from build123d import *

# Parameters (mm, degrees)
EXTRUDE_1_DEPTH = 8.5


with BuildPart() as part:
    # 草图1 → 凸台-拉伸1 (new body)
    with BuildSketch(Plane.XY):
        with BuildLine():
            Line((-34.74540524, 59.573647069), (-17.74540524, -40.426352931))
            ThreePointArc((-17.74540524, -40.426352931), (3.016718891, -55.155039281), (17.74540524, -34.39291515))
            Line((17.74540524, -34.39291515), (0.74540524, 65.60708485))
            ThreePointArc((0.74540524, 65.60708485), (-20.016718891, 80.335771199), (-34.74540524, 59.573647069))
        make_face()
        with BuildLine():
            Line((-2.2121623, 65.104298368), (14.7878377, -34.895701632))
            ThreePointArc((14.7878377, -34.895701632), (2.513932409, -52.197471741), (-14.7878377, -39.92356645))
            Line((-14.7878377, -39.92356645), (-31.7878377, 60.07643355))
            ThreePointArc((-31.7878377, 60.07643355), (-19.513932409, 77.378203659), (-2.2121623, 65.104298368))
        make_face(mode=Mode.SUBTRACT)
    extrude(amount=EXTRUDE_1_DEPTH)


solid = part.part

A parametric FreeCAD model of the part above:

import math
import FreeCAD as App
import Part
import Sketcher
from FreeCAD import Vector

doc = App.newDocument("Part")
params = doc.addObject("Spreadsheet::Sheet", "Params")
for row, (alias, value) in enumerate([
    ("sketch1_radius", "18 mm"),
    ("sketch1_radius2", "15 mm"),
    ("pad1_length", "8.5 mm"),
], start=1):
    params.set(f"A{row}", alias)
    params.set(f"B{row}", "=" + value)
    params.setAlias(f"B{row}", alias)

body = doc.addObject("PartDesign::Body", "Body")

# Sketch on XY plane
sketch1 = doc.addObject("Sketcher::SketchObject", "Sketch")
body.addObject(sketch1)
sketch1.AttachmentSupport = (doc.XY_Plane, [""])
sketch1.MapMode = "FlatFace"
sketch1.addGeometry([
    Part.LineSegment(Vector(-35, 60, 0), Vector(-18, -40, 0)),  # 0
    Part.ArcOfCircle(Part.Circle(Vector(0, -37, 0), Vector(0, 0, 1), 18), math.radians(-170), math.radians(10)),  # 1
    Part.LineSegment(Vector(18, -34, 0), Vector(1, 66, 0)),  # 2
    Part.ArcOfCircle(Part.Circle(Vector(-17, 63, 0), Vector(0, 0, 1), 18), math.radians(10), math.radians(190)),  # 3
    Part.ArcOfCircle(Part.Circle(Vector(-17, 63, 0), Vector(0, 0, 1), 15), math.radians(10), math.radians(190)),  # 4
    Part.LineSegment(Vector(-2, 65, 0), Vector(15, -35, 0)),  # 5
    Part.ArcOfCircle(Part.Circle(Vector(0, -37, 0), Vector(0, 0, 1), 15), math.radians(-170), math.radians(10)),  # 6
    Part.LineSegment(Vector(-15, -40, 0), Vector(-32, 60, 0)),  # 7
], False)
sketch1.addConstraint([
    Sketcher.Constraint("Tangent", 0, 2, 1, 1),
    Sketcher.Constraint("Tangent", 1, 2, 2, 1),
    Sketcher.Constraint("Tangent", 2, 2, 3, 1),
    Sketcher.Constraint("Tangent", 3, 2, 0, 1),
    Sketcher.Constraint("Tangent", 4, 1, 5, 1),
    Sketcher.Constraint("Tangent", 5, 2, 6, 2),
    Sketcher.Constraint("Tangent", 6, 1, 7, 1),
    Sketcher.Constraint("Tangent", 7, 2, 4, 2),
    Sketcher.Constraint("Coincident", 4, 3, 3, 3),
    Sketcher.Constraint("Coincident", 6, 3, 1, 3),
    Sketcher.Constraint("Equal", 1, 3),
    Sketcher.Constraint("Equal", 4, 6),
    Sketcher.Constraint("PointOnObject", 1, 3, -2),
    Sketcher.Constraint("Radius", 1, 18.0),
    Sketcher.Constraint("Radius", 4, 15.0),
    Sketcher.Constraint("DistanceX", 3, 3, -1, 1, 17.0),
    Sketcher.Constraint("DistanceY", 1, 3, 3, 3, 100.0),
    Sketcher.Constraint("DistanceY", -1, 1, 4, 1, 65.104298),
])
sketch1.setExpression("Constraints[13]", "Params.sketch1_radius")
sketch1.setExpression("Constraints[14]", "Params.sketch1_radius2")
pad1 = doc.addObject("PartDesign::Pad", "Pad")
body.addObject(pad1)
pad1.Profile = sketch1
pad1.setExpression("Length", "Params.pad1_length")

doc.recompute()
